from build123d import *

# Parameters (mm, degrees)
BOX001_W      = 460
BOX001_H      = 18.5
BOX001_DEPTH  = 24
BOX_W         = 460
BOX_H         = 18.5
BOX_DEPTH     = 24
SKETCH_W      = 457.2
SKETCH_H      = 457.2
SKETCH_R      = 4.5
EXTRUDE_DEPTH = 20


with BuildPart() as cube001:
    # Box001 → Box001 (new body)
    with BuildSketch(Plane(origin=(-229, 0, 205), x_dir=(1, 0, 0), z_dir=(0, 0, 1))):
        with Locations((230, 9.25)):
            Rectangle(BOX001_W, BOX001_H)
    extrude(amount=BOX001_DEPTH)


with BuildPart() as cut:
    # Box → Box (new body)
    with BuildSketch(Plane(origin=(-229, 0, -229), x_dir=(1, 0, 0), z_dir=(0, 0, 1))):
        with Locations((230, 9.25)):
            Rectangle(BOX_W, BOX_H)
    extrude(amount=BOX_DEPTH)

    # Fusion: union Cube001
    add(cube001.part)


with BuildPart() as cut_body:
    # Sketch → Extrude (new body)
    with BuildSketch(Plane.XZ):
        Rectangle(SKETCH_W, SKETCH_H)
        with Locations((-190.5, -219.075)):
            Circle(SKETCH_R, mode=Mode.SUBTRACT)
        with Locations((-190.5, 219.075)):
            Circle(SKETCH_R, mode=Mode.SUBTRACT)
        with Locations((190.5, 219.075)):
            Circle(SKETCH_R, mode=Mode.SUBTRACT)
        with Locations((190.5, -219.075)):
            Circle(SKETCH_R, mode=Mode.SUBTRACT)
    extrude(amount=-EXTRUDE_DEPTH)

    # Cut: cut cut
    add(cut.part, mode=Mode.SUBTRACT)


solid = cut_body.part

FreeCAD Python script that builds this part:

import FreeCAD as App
import Part
import Sketcher
from FreeCAD import Vector

doc = App.newDocument("Part")
params = doc.addObject("Spreadsheet::Sheet", "Params")
for row, (alias, value) in enumerate([
    ("sketch1_width", "460 mm"),
    ("sketch1_height", "18.5 mm"),
    ("pad1_length", "24 mm"),
    ("sketch2_width", "460 mm"),
    ("sketch2_height", "18.5 mm"),
    ("pad2_length", "24 mm"),
    ("sketch3_diameter", "9 mm"),
    ("sketch3_width", "457.2 mm"),
    ("pad3_length", "20 mm"),
], start=1):
    params.set(f"A{row}", alias)
    params.set(f"B{row}", "=" + value)
    params.setAlias(f"B{row}", alias)

body = doc.addObject("PartDesign::Body", "Body")

# Sketch on XY plane
sketch1 = body.newObject("Sketcher::SketchObject", "Sketch")
sketch1.AttachmentSupport = (doc.getObject("XY_Plane"), [""])
sketch1.MapMode = "FlatFace"
sketch1.AttachmentOffset = App.Placement(Vector(0, 0, 205), App.Rotation())
sketch1.addGeometry([
    Part.LineSegment(Vector(-229, 18, 0), Vector(-229, 0, 0)),
    Part.LineSegment(Vector(-229, 0, 0), Vector(231, 0, 0)),
    Part.LineSegment(Vector(231, 0, 0), Vector(231, 18, 0)),
    Part.LineSegment(Vector(231, 18, 0), Vector(-229, 18, 0)),
], False)
sketch1.addConstraint([
    Sketcher.Constraint("Coincident", 0, 2, 1, 1),
    Sketcher.Constraint("Coincident", 1, 2, 2, 1),
    Sketcher.Constraint("Coincident", 2, 2, 3, 1),
    Sketcher.Constraint("Coincident", 3, 2, 0, 1),
    Sketcher.Constraint("Vertical", 0),
    Sketcher.Constraint("Horizontal", 1),
    Sketcher.Constraint("Vertical", 2),
    Sketcher.Constraint("Horizontal", 3),
    Sketcher.Constraint("PointOnObject", 0, 2, -1),
    Sketcher.Constraint("DistanceX", 1, 1, 1, 2, 460.0),
    Sketcher.Constraint("DistanceY", 0, 2, 0, 1, 18.5),
    Sketcher.Constraint("DistanceX", 0, 2, -1, 1, 229.0),
])
sketch1.setExpression("Constraints[9]", "Params.sketch1_width")
sketch1.setExpression("Constraints[10]", "Params.sketch1_height")
pad1 = body.newObject("PartDesign::Pad", "Pad")
pad1.Profile = sketch1
pad1.setExpression("Length", "Params.pad1_length")
body2 = doc.addObject("PartDesign::Body", "Body001")
body2.AllowCompound = True

# Sketch on XY plane
sketch2 = body2.newObject("Sketcher::SketchObject", "Sketch001")
sketch2.AttachmentSupport = (doc.getObject("XY_Plane001"), [""])
sketch2.MapMode = "FlatFace"
sketch2.AttachmentOffset = App.Placement(Vector(0, 0, -229), App.Rotation())
sketch2.addGeometry([
    Part.LineSegment(Vector(-229, 18, 0), Vector(-229, 0, 0)),
    Part.LineSegment(Vector(-229, 0, 0), Vector(231, 0, 0)),
    Part.LineSegment(Vector(231, 0, 0), Vector(231, 18, 0)),
    Part.LineSegment(Vector(231, 18, 0), Vector(-229, 18, 0)),
], False)
sketch2.addConstraint([
    Sketcher.Constraint("Coincident", 0, 2, 1, 1),
    Sketcher.Constraint("Coincident", 1, 2, 2, 1),
    Sketcher.Constraint("Coincident", 2, 2, 3, 1),
    Sketcher.Constraint("Coincident", 3, 2, 0, 1),
    Sketcher.Constraint("Vertical", 0),
    Sketcher.Constraint("Horizontal", 1),
    Sketcher.Constraint("Vertical", 2),
    Sketcher.Constraint("Horizontal", 3),
    Sketcher.Constraint("PointOnObject", 0, 2, -1),
    Sketcher.Constraint("DistanceX", 1, 1, 1, 2, 460.0),
    Sketcher.Constraint("DistanceY", 0, 2, 0, 1, 18.5),
    Sketcher.Constraint("DistanceX", 0, 2, -1, 1, 229.0),
])
sketch2.setExpression("Constraints[9]", "Params.sketch2_width")
sketch2.setExpression("Constraints[10]", "Params.sketch2_height")
pad2 = body2.newObject("PartDesign::Pad", "Pad001")
pad2.Profile = sketch2
pad2.setExpression("Length", "Params.pad2_length")
doc.recompute()

boolean = body2.newObject("PartDesign::Boolean", "Boolean")
boolean.Type = "Fuse"
boolean.addObjects([body])
body3 = doc.addObject("PartDesign::Body", "Body002")

# Sketch on XZ plane
sketch3 = body3.newObject("Sketcher::SketchObject", "Sketch002")
sketch3.AttachmentSupport = (doc.getObject("XZ_Plane002"), [""])
sketch3.MapMode = "FlatFace"
sketch3.addGeometry([
    Part.LineSegment(Vector(-228.6, 228.6, 0), Vector(-228.6, -228.6, 0)),  # 0
    Part.LineSegment(Vector(-228.6, -228.6, 0), Vector(228.6, -228.6, 0)),  # 1
    Part.LineSegment(Vector(228.6, -228.6, 0), Vector(228.6, 228.6, 0)),  # 2
    Part.LineSegment(Vector(228.6, 228.6, 0), Vector(-228.6, 228.6, 0)),  # 3
    Part.Circle(Vector(-190.5, -219.1, 0), Vector(0, 0, 1), 4.5),  # 4
    Part.Circle(Vector(190.5, -219.1, 0), Vector(0, 0, 1), 4.5),  # 5
    Part.Circle(Vector(-190.5, 219.1, 0), Vector(0, 0, 1), 4.5),  # 6
    Part.Circle(Vector(190.5, 219.1, 0), Vector(0, 0, 1), 4.5),  # 7
], False)
sketch3.addConstraint([
    Sketcher.Constraint("Coincident", 0, 2, 1, 1),
    Sketcher.Constraint("Coincident", 1, 2, 2, 1),
    Sketcher.Constraint("Coincident", 2, 2, 3, 1),
    Sketcher.Constraint("Coincident", 3, 2, 0, 1),
    Sketcher.Constraint("Vertical", 0),
    Sketcher.Constraint("Horizontal", 1),
    Sketcher.Constraint("Vertical", 2),
    Sketcher.Constraint("Horizontal", 3),
    Sketcher.Constraint("Equal", 4, 5),
    Sketcher.Constraint("Equal", 5, 6),
    Sketcher.Constraint("Equal", 6, 7),
    Sketcher.Constraint("Symmetric", 5, 3, 6, 3, -1, 1),
    Sketcher.Constraint("Symmetric", 4, 3, 7, 3, -1, 1),
    Sketcher.Constraint("Symmetric", 0, 2, 2, 2, -1, 1),
    Sketcher.Constraint("Symmetric", 4, 3, 5, 3, -2),
    Sketcher.Constraint("Equal", 3, 0),
    Sketcher.Constraint("Diameter", 4, 9.0),
    Sketcher.Constraint("DistanceX", 1, 1, 1, 2, 457.2),
    Sketcher.Constraint("DistanceX", 4, 3, 5, 3, 381.0),
    Sketcher.Constraint("DistanceY", 4, 3, 6, 3, 438.15),
])
sketch3.setExpression("Constraints[16]", "Params.sketch3_diameter")
sketch3.setExpression("Constraints[17]", "Params.sketch3_width")
pad3 = body3.newObject("PartDesign::Pad", "Pad002")
pad3.Profile = sketch3
pad3.setExpression("Length", "Params.pad3_length")
pad3.Reversed = True
doc.recompute()

boolean2 = body3.newObject("PartDesign::Boolean", "Boolean001")
boolean2.Type = "Cut"
boolean2.addObjects([body2])

doc.recompute()
